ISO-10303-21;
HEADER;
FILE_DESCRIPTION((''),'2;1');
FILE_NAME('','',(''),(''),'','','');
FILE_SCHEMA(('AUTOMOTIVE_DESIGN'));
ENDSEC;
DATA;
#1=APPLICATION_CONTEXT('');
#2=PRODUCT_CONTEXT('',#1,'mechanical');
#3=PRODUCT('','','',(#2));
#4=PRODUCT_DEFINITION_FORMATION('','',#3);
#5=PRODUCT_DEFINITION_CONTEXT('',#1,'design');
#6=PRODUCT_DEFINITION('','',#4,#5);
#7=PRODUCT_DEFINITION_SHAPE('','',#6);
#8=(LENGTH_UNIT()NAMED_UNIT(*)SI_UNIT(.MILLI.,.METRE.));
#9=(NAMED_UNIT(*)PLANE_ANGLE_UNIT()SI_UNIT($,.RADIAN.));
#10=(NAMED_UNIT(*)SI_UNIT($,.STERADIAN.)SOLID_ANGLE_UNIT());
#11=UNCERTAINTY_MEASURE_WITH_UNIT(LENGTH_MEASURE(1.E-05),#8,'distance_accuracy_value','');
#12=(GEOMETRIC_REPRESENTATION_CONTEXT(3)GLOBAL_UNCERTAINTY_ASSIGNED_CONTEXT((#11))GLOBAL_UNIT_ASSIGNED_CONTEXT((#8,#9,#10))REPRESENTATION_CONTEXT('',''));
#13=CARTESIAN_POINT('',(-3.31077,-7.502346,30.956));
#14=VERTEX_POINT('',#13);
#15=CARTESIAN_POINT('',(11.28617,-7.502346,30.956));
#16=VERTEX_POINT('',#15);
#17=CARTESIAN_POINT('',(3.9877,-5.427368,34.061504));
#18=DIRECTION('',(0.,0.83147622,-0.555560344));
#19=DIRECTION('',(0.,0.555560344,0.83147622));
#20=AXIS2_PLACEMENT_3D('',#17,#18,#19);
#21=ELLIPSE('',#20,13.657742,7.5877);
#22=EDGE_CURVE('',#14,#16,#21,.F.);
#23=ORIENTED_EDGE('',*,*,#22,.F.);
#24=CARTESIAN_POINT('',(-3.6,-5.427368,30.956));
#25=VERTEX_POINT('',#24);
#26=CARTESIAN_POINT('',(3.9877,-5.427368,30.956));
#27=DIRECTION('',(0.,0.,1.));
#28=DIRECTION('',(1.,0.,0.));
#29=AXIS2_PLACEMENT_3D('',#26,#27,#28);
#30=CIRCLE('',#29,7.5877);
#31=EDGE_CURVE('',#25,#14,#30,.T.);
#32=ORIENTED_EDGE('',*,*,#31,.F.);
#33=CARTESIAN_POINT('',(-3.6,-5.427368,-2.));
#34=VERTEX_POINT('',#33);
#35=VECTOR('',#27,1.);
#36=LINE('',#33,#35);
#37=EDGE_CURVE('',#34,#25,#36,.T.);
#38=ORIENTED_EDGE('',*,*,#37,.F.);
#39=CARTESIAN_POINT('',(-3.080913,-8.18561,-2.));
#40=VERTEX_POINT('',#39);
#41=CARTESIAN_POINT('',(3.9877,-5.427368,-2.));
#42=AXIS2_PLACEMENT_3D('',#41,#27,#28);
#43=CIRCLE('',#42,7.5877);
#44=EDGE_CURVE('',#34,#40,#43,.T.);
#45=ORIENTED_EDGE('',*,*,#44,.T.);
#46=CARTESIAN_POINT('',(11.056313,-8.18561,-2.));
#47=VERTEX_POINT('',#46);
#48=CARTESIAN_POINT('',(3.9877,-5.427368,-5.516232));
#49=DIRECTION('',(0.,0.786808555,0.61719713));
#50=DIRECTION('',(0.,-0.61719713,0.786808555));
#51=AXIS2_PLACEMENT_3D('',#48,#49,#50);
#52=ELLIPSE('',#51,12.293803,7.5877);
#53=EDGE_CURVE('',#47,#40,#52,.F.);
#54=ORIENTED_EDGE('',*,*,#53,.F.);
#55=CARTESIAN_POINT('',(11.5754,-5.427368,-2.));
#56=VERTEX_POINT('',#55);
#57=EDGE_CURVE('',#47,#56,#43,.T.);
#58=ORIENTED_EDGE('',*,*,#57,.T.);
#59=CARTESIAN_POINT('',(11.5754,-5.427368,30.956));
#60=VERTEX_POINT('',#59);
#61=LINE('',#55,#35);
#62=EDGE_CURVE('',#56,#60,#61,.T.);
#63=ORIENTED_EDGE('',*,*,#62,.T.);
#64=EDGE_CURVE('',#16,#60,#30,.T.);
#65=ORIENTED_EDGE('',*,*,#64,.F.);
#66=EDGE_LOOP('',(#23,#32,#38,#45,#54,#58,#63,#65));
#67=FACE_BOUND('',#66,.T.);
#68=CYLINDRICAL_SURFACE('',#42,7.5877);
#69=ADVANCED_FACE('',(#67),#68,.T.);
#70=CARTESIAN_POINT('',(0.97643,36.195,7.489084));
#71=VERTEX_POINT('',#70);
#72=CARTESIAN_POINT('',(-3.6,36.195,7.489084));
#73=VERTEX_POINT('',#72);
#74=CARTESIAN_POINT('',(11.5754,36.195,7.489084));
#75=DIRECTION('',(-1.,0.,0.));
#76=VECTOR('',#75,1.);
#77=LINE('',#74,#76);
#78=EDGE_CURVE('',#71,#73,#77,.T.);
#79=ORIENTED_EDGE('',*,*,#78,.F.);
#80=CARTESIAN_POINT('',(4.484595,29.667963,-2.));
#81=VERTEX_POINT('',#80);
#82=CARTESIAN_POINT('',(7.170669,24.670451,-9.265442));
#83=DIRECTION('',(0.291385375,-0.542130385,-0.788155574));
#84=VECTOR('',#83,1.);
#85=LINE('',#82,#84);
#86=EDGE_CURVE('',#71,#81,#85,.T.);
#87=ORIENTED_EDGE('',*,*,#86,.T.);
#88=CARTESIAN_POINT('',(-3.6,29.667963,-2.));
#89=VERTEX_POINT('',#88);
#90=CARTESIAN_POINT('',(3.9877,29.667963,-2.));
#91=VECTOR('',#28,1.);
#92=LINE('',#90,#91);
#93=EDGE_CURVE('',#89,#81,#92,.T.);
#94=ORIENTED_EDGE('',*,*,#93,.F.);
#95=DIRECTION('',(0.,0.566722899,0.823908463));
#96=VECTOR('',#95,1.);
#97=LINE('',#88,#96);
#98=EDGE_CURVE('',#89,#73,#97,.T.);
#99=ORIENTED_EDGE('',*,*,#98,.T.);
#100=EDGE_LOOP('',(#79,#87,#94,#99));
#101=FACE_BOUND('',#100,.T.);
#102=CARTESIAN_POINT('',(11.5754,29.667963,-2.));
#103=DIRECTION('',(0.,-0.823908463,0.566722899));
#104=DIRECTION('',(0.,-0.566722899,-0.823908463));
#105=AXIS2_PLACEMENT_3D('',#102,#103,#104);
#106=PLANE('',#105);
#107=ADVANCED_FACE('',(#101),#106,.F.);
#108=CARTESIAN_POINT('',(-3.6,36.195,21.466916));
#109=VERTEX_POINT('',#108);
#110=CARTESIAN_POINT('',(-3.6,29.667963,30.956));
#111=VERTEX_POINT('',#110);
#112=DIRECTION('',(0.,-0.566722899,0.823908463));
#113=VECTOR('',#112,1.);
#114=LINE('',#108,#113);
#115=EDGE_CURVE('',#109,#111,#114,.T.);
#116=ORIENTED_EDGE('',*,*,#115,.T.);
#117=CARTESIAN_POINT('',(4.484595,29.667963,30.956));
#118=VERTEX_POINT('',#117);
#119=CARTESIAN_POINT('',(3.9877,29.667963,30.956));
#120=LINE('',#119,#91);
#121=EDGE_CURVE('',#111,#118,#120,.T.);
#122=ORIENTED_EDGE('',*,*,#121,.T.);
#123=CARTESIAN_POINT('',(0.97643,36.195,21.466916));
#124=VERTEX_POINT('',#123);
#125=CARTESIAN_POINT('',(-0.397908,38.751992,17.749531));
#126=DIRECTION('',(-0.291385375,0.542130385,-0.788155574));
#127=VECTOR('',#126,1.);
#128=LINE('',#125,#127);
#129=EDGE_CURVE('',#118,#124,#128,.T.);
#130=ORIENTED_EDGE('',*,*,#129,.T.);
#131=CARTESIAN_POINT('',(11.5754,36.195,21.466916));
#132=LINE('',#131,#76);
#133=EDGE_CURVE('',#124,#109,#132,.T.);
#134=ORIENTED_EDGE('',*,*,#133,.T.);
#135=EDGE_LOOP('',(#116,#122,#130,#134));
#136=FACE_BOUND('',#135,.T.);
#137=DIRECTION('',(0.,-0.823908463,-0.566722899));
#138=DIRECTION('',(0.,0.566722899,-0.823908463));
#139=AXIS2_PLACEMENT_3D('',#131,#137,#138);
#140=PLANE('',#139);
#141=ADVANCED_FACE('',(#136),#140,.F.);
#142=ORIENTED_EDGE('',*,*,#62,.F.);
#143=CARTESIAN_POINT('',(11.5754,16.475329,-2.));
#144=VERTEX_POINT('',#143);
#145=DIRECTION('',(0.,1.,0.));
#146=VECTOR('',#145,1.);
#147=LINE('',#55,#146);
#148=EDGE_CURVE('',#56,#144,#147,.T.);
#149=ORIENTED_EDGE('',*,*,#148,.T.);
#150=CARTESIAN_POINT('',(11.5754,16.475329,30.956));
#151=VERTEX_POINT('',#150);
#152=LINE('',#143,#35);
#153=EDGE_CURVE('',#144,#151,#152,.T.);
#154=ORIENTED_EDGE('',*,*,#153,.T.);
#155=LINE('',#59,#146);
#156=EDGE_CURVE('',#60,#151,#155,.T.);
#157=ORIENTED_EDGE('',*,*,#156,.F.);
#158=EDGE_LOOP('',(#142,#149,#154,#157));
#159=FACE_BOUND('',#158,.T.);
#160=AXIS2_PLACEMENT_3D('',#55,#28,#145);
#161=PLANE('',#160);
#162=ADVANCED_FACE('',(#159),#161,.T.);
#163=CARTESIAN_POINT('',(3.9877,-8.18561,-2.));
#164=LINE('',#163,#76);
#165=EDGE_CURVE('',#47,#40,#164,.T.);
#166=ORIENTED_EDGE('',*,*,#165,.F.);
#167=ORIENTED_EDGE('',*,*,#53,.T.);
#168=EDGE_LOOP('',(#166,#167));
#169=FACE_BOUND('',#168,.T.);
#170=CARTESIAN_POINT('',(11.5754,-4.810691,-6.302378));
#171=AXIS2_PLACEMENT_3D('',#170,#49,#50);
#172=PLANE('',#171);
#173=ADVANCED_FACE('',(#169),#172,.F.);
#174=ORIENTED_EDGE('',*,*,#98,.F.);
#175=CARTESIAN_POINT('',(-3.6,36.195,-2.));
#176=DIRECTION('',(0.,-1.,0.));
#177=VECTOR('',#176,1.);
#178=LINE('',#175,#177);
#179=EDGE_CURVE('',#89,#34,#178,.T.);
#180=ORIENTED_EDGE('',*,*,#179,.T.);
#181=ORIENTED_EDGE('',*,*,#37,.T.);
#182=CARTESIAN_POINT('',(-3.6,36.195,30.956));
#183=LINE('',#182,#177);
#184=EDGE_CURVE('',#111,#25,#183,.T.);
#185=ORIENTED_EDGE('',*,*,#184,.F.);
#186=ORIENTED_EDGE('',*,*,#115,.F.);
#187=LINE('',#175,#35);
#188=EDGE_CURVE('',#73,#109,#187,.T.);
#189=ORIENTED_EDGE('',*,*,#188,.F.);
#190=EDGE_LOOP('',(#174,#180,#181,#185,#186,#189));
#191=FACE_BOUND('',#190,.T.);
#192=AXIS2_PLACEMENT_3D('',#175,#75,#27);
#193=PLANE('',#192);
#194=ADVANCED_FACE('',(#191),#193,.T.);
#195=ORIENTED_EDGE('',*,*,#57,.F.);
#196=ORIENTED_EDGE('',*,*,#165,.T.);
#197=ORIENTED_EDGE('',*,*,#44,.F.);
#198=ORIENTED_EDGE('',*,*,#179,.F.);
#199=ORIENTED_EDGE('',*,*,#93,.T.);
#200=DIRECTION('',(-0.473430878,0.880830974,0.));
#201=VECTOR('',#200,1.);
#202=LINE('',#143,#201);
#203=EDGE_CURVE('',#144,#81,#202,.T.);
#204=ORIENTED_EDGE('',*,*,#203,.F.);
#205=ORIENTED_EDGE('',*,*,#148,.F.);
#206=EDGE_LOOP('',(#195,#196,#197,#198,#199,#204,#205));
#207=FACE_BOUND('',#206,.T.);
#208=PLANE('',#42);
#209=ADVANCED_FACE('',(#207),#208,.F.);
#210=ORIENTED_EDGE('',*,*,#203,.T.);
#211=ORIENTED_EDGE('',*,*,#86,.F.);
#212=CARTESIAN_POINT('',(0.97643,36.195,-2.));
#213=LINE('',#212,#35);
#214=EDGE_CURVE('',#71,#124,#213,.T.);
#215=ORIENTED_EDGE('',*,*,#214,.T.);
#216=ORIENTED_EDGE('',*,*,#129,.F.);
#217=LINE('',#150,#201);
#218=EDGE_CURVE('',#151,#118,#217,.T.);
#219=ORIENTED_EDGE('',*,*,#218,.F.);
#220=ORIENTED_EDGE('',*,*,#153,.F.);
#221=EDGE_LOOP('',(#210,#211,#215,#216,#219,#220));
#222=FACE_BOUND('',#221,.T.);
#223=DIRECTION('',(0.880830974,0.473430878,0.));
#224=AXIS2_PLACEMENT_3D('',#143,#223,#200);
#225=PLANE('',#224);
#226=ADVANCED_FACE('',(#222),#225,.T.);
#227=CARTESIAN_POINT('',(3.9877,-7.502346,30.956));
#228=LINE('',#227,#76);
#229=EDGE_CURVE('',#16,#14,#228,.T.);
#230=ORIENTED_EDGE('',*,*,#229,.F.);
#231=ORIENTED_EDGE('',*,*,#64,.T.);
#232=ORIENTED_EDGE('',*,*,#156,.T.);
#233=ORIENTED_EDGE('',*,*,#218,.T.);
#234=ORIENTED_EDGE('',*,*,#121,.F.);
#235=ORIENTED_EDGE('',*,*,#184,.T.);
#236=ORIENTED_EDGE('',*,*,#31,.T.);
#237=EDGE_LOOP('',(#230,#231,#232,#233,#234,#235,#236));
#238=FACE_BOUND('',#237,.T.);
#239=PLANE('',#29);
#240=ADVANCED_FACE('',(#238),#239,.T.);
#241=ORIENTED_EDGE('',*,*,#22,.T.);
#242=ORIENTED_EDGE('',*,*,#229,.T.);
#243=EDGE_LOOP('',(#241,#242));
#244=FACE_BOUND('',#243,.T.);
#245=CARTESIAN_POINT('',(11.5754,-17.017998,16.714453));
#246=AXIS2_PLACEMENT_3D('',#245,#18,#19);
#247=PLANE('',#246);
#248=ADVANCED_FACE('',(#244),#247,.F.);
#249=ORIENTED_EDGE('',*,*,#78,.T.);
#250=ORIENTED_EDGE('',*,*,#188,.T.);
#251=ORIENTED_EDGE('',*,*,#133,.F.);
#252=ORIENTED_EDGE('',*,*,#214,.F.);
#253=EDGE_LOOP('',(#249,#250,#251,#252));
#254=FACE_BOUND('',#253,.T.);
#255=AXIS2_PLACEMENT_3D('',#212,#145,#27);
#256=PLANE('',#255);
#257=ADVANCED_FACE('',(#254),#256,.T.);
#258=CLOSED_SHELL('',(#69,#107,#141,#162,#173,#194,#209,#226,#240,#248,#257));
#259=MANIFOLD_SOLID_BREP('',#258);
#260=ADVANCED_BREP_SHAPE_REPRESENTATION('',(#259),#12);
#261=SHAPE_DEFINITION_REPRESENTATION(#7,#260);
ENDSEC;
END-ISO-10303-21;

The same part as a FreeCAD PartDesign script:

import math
import FreeCAD as App
import Part
import Sketcher

V = App.Vector
Q = App.Units.Quantity


def add_polygon(sketch, points):
    """Adds a closed chain of lines whose ends are joined by coincident constraints."""
    first, n = sketch.GeometryCount, len(points)
    for a, b in zip(points, points[1:] + points[:1]):
        sketch.addGeometry(Part.LineSegment(App.Vector(*a, 0), App.Vector(*b, 0)), False)
    for i in range(n):
        sketch.addConstraint(Sketcher.Constraint("Coincident", first + i, 2, first + (i + 1) % n, 1))

doc = App.newDocument("Part")
body = doc.addObject("PartDesign::Body", "Body")

# Sketch on XY plane
sketch1 = body.newObject("Sketcher::SketchObject", "Sketch")
sketch1.AttachmentSupport = (doc.getObject("XY_Plane"), [""])
sketch1.MapMode = "FlatFace"
sketch1.addGeometry([
    Part.LineSegment(V(-3.6, 36.195, 0), V(-3.6, -5.427368, 0)),  # 0
    Part.ArcOfCircle(Part.Circle(V(3.9877, -5.427368, 0), V(0, 0, 1), 7.5877), math.radians(180), math.radians(360)),  # 1
    Part.LineSegment(V(11.5754, -5.427368, 0), V(11.5754, 16.475329, 0)),  # 2
    Part.LineSegment(V(11.5754, 16.475329, 0), V(0.97643, 36.195, 0)),  # 3
    Part.LineSegment(V(0.97643, 36.195, 0), V(-3.6, 36.195, 0)),  # 4
], False)
sketch1.addConstraint([
    Sketcher.Constraint("Tangent", 0, 2, 1, 1),
    Sketcher.Constraint("Tangent", 1, 2, 2, 1),
    Sketcher.Constraint("Coincident", 2, 2, 3, 1),
    Sketcher.Constraint("Coincident", 3, 2, 4, 1),
    Sketcher.Constraint("Coincident", 4, 2, 0, 1),
    Sketcher.Constraint("Vertical", 0),
    Sketcher.Constraint("Vertical", 2),
    Sketcher.Constraint("Horizontal", 4),
    Sketcher.Constraint("DistanceX", 0, 2, -1, 1, Q("3.6 mm")),
    Sketcher.Constraint("Radius", 1, Q("7.5877 mm")),
    Sketcher.Constraint("DistanceY", -1, 1, 3, 2, Q("36.195 mm")),
    Sketcher.Constraint("DistanceX", 4, 2, 4, 1, Q("4.57643 mm")),
    Sketcher.Constraint("DistanceY", 0, 2, 0, 1, Q("41.622368 mm")),
    Sketcher.Constraint("DistanceY", 2, 1, 2, 2, Q("21.902697 mm")),
])
pad1 = body.newObject("PartDesign::Pad", "Pad")
pad1.Profile = sketch1
pad1.Type = "TwoLengths"
pad1.Length = 30.956
pad1.Length2 = 2

# Sketch on YZ plane
sketch2 = body.newObject("Sketcher::SketchObject", "Sketch001")
sketch2.AttachmentSupport = (doc.getObject("YZ_Plane"), [""])
sketch2.MapMode = "FlatFace"
add_polygon(sketch2, [(29.667963, -2), (36.195, 7.489084), (36.195, 21.466916), (29.667963, 30.956), (40.573926, 30.956), (40.573926, -2)])  # lines 0-5
add_polygon(sketch2, [(-17.017998, 9.259609), (-4.810691, -6.302378), (-21.396924, -6.302378), (-21.396924, 37.494831), (-3.133351, 37.494831), (-17.017998, 16.714453)])  # lines 6-11
sketch2.addConstraint([
    Sketcher.Constraint("Vertical", 1),
    Sketcher.Constraint("Horizontal", 3),
    Sketcher.Constraint("Vertical", 4),
    Sketcher.Constraint("Horizontal", 5),
    Sketcher.Constraint("Horizontal", 7),
    Sketcher.Constraint("Vertical", 8),
    Sketcher.Constraint("Horizontal", 9),
    Sketcher.Constraint("Vertical", 11),
    Sketcher.Constraint("Vertical", 2, 2, 5, 2),
    Sketcher.Constraint("Equal", 0, 2),
    Sketcher.Constraint("DistanceY", 4, 2, -1, 1, Q("2 mm")),
    Sketcher.Constraint("DistanceY", 4, 2, 4, 1, Q("32.956 mm")),
    Sketcher.Constraint("DistanceX", -1, 1, 0, 2, Q("36.195 mm")),
    Sketcher.Constraint("DistanceY", 8, 1, 8, 2, Q("43.797209 mm")),
    Sketcher.Constraint("Distance", 6, Q("19.778619 mm")),
    Sketcher.Constraint("Distance", 10, Q("24.992149 mm")),
    Sketcher.Constraint("DistanceX", 3, 1, 3, 2, Q("10.905963 mm")),
    Sketcher.Constraint("DistanceX", 7, 2, 7, 1, Q("16.586233 mm")),
    Sketcher.Constraint("DistanceX", 9, 1, 9, 2, Q("18.263573 mm")),
    Sketcher.Constraint("DistanceY", 1, 1, 1, 2, Q("13.977833 mm")),
    Sketcher.Constraint("DistanceY", 11, 2, 11, 1, Q("7.454844 mm")),
    Sketcher.Constraint("DistanceX", 6, 2, -1, 1, Q("4.810691 mm")),
    Sketcher.Constraint("DistanceY", -1, 1, 8, 2, Q("37.494831 mm")),
    Sketcher.Constraint("DistanceX", 7, 2, 4, 2, Q("61.97085 mm")),
])
pocket1 = body.newObject("PartDesign::Pocket", "Pocket")
pocket1.Profile = sketch2
pocket1.Type = "ThroughAll"
pocket1.Midplane = True

doc.recompute()
